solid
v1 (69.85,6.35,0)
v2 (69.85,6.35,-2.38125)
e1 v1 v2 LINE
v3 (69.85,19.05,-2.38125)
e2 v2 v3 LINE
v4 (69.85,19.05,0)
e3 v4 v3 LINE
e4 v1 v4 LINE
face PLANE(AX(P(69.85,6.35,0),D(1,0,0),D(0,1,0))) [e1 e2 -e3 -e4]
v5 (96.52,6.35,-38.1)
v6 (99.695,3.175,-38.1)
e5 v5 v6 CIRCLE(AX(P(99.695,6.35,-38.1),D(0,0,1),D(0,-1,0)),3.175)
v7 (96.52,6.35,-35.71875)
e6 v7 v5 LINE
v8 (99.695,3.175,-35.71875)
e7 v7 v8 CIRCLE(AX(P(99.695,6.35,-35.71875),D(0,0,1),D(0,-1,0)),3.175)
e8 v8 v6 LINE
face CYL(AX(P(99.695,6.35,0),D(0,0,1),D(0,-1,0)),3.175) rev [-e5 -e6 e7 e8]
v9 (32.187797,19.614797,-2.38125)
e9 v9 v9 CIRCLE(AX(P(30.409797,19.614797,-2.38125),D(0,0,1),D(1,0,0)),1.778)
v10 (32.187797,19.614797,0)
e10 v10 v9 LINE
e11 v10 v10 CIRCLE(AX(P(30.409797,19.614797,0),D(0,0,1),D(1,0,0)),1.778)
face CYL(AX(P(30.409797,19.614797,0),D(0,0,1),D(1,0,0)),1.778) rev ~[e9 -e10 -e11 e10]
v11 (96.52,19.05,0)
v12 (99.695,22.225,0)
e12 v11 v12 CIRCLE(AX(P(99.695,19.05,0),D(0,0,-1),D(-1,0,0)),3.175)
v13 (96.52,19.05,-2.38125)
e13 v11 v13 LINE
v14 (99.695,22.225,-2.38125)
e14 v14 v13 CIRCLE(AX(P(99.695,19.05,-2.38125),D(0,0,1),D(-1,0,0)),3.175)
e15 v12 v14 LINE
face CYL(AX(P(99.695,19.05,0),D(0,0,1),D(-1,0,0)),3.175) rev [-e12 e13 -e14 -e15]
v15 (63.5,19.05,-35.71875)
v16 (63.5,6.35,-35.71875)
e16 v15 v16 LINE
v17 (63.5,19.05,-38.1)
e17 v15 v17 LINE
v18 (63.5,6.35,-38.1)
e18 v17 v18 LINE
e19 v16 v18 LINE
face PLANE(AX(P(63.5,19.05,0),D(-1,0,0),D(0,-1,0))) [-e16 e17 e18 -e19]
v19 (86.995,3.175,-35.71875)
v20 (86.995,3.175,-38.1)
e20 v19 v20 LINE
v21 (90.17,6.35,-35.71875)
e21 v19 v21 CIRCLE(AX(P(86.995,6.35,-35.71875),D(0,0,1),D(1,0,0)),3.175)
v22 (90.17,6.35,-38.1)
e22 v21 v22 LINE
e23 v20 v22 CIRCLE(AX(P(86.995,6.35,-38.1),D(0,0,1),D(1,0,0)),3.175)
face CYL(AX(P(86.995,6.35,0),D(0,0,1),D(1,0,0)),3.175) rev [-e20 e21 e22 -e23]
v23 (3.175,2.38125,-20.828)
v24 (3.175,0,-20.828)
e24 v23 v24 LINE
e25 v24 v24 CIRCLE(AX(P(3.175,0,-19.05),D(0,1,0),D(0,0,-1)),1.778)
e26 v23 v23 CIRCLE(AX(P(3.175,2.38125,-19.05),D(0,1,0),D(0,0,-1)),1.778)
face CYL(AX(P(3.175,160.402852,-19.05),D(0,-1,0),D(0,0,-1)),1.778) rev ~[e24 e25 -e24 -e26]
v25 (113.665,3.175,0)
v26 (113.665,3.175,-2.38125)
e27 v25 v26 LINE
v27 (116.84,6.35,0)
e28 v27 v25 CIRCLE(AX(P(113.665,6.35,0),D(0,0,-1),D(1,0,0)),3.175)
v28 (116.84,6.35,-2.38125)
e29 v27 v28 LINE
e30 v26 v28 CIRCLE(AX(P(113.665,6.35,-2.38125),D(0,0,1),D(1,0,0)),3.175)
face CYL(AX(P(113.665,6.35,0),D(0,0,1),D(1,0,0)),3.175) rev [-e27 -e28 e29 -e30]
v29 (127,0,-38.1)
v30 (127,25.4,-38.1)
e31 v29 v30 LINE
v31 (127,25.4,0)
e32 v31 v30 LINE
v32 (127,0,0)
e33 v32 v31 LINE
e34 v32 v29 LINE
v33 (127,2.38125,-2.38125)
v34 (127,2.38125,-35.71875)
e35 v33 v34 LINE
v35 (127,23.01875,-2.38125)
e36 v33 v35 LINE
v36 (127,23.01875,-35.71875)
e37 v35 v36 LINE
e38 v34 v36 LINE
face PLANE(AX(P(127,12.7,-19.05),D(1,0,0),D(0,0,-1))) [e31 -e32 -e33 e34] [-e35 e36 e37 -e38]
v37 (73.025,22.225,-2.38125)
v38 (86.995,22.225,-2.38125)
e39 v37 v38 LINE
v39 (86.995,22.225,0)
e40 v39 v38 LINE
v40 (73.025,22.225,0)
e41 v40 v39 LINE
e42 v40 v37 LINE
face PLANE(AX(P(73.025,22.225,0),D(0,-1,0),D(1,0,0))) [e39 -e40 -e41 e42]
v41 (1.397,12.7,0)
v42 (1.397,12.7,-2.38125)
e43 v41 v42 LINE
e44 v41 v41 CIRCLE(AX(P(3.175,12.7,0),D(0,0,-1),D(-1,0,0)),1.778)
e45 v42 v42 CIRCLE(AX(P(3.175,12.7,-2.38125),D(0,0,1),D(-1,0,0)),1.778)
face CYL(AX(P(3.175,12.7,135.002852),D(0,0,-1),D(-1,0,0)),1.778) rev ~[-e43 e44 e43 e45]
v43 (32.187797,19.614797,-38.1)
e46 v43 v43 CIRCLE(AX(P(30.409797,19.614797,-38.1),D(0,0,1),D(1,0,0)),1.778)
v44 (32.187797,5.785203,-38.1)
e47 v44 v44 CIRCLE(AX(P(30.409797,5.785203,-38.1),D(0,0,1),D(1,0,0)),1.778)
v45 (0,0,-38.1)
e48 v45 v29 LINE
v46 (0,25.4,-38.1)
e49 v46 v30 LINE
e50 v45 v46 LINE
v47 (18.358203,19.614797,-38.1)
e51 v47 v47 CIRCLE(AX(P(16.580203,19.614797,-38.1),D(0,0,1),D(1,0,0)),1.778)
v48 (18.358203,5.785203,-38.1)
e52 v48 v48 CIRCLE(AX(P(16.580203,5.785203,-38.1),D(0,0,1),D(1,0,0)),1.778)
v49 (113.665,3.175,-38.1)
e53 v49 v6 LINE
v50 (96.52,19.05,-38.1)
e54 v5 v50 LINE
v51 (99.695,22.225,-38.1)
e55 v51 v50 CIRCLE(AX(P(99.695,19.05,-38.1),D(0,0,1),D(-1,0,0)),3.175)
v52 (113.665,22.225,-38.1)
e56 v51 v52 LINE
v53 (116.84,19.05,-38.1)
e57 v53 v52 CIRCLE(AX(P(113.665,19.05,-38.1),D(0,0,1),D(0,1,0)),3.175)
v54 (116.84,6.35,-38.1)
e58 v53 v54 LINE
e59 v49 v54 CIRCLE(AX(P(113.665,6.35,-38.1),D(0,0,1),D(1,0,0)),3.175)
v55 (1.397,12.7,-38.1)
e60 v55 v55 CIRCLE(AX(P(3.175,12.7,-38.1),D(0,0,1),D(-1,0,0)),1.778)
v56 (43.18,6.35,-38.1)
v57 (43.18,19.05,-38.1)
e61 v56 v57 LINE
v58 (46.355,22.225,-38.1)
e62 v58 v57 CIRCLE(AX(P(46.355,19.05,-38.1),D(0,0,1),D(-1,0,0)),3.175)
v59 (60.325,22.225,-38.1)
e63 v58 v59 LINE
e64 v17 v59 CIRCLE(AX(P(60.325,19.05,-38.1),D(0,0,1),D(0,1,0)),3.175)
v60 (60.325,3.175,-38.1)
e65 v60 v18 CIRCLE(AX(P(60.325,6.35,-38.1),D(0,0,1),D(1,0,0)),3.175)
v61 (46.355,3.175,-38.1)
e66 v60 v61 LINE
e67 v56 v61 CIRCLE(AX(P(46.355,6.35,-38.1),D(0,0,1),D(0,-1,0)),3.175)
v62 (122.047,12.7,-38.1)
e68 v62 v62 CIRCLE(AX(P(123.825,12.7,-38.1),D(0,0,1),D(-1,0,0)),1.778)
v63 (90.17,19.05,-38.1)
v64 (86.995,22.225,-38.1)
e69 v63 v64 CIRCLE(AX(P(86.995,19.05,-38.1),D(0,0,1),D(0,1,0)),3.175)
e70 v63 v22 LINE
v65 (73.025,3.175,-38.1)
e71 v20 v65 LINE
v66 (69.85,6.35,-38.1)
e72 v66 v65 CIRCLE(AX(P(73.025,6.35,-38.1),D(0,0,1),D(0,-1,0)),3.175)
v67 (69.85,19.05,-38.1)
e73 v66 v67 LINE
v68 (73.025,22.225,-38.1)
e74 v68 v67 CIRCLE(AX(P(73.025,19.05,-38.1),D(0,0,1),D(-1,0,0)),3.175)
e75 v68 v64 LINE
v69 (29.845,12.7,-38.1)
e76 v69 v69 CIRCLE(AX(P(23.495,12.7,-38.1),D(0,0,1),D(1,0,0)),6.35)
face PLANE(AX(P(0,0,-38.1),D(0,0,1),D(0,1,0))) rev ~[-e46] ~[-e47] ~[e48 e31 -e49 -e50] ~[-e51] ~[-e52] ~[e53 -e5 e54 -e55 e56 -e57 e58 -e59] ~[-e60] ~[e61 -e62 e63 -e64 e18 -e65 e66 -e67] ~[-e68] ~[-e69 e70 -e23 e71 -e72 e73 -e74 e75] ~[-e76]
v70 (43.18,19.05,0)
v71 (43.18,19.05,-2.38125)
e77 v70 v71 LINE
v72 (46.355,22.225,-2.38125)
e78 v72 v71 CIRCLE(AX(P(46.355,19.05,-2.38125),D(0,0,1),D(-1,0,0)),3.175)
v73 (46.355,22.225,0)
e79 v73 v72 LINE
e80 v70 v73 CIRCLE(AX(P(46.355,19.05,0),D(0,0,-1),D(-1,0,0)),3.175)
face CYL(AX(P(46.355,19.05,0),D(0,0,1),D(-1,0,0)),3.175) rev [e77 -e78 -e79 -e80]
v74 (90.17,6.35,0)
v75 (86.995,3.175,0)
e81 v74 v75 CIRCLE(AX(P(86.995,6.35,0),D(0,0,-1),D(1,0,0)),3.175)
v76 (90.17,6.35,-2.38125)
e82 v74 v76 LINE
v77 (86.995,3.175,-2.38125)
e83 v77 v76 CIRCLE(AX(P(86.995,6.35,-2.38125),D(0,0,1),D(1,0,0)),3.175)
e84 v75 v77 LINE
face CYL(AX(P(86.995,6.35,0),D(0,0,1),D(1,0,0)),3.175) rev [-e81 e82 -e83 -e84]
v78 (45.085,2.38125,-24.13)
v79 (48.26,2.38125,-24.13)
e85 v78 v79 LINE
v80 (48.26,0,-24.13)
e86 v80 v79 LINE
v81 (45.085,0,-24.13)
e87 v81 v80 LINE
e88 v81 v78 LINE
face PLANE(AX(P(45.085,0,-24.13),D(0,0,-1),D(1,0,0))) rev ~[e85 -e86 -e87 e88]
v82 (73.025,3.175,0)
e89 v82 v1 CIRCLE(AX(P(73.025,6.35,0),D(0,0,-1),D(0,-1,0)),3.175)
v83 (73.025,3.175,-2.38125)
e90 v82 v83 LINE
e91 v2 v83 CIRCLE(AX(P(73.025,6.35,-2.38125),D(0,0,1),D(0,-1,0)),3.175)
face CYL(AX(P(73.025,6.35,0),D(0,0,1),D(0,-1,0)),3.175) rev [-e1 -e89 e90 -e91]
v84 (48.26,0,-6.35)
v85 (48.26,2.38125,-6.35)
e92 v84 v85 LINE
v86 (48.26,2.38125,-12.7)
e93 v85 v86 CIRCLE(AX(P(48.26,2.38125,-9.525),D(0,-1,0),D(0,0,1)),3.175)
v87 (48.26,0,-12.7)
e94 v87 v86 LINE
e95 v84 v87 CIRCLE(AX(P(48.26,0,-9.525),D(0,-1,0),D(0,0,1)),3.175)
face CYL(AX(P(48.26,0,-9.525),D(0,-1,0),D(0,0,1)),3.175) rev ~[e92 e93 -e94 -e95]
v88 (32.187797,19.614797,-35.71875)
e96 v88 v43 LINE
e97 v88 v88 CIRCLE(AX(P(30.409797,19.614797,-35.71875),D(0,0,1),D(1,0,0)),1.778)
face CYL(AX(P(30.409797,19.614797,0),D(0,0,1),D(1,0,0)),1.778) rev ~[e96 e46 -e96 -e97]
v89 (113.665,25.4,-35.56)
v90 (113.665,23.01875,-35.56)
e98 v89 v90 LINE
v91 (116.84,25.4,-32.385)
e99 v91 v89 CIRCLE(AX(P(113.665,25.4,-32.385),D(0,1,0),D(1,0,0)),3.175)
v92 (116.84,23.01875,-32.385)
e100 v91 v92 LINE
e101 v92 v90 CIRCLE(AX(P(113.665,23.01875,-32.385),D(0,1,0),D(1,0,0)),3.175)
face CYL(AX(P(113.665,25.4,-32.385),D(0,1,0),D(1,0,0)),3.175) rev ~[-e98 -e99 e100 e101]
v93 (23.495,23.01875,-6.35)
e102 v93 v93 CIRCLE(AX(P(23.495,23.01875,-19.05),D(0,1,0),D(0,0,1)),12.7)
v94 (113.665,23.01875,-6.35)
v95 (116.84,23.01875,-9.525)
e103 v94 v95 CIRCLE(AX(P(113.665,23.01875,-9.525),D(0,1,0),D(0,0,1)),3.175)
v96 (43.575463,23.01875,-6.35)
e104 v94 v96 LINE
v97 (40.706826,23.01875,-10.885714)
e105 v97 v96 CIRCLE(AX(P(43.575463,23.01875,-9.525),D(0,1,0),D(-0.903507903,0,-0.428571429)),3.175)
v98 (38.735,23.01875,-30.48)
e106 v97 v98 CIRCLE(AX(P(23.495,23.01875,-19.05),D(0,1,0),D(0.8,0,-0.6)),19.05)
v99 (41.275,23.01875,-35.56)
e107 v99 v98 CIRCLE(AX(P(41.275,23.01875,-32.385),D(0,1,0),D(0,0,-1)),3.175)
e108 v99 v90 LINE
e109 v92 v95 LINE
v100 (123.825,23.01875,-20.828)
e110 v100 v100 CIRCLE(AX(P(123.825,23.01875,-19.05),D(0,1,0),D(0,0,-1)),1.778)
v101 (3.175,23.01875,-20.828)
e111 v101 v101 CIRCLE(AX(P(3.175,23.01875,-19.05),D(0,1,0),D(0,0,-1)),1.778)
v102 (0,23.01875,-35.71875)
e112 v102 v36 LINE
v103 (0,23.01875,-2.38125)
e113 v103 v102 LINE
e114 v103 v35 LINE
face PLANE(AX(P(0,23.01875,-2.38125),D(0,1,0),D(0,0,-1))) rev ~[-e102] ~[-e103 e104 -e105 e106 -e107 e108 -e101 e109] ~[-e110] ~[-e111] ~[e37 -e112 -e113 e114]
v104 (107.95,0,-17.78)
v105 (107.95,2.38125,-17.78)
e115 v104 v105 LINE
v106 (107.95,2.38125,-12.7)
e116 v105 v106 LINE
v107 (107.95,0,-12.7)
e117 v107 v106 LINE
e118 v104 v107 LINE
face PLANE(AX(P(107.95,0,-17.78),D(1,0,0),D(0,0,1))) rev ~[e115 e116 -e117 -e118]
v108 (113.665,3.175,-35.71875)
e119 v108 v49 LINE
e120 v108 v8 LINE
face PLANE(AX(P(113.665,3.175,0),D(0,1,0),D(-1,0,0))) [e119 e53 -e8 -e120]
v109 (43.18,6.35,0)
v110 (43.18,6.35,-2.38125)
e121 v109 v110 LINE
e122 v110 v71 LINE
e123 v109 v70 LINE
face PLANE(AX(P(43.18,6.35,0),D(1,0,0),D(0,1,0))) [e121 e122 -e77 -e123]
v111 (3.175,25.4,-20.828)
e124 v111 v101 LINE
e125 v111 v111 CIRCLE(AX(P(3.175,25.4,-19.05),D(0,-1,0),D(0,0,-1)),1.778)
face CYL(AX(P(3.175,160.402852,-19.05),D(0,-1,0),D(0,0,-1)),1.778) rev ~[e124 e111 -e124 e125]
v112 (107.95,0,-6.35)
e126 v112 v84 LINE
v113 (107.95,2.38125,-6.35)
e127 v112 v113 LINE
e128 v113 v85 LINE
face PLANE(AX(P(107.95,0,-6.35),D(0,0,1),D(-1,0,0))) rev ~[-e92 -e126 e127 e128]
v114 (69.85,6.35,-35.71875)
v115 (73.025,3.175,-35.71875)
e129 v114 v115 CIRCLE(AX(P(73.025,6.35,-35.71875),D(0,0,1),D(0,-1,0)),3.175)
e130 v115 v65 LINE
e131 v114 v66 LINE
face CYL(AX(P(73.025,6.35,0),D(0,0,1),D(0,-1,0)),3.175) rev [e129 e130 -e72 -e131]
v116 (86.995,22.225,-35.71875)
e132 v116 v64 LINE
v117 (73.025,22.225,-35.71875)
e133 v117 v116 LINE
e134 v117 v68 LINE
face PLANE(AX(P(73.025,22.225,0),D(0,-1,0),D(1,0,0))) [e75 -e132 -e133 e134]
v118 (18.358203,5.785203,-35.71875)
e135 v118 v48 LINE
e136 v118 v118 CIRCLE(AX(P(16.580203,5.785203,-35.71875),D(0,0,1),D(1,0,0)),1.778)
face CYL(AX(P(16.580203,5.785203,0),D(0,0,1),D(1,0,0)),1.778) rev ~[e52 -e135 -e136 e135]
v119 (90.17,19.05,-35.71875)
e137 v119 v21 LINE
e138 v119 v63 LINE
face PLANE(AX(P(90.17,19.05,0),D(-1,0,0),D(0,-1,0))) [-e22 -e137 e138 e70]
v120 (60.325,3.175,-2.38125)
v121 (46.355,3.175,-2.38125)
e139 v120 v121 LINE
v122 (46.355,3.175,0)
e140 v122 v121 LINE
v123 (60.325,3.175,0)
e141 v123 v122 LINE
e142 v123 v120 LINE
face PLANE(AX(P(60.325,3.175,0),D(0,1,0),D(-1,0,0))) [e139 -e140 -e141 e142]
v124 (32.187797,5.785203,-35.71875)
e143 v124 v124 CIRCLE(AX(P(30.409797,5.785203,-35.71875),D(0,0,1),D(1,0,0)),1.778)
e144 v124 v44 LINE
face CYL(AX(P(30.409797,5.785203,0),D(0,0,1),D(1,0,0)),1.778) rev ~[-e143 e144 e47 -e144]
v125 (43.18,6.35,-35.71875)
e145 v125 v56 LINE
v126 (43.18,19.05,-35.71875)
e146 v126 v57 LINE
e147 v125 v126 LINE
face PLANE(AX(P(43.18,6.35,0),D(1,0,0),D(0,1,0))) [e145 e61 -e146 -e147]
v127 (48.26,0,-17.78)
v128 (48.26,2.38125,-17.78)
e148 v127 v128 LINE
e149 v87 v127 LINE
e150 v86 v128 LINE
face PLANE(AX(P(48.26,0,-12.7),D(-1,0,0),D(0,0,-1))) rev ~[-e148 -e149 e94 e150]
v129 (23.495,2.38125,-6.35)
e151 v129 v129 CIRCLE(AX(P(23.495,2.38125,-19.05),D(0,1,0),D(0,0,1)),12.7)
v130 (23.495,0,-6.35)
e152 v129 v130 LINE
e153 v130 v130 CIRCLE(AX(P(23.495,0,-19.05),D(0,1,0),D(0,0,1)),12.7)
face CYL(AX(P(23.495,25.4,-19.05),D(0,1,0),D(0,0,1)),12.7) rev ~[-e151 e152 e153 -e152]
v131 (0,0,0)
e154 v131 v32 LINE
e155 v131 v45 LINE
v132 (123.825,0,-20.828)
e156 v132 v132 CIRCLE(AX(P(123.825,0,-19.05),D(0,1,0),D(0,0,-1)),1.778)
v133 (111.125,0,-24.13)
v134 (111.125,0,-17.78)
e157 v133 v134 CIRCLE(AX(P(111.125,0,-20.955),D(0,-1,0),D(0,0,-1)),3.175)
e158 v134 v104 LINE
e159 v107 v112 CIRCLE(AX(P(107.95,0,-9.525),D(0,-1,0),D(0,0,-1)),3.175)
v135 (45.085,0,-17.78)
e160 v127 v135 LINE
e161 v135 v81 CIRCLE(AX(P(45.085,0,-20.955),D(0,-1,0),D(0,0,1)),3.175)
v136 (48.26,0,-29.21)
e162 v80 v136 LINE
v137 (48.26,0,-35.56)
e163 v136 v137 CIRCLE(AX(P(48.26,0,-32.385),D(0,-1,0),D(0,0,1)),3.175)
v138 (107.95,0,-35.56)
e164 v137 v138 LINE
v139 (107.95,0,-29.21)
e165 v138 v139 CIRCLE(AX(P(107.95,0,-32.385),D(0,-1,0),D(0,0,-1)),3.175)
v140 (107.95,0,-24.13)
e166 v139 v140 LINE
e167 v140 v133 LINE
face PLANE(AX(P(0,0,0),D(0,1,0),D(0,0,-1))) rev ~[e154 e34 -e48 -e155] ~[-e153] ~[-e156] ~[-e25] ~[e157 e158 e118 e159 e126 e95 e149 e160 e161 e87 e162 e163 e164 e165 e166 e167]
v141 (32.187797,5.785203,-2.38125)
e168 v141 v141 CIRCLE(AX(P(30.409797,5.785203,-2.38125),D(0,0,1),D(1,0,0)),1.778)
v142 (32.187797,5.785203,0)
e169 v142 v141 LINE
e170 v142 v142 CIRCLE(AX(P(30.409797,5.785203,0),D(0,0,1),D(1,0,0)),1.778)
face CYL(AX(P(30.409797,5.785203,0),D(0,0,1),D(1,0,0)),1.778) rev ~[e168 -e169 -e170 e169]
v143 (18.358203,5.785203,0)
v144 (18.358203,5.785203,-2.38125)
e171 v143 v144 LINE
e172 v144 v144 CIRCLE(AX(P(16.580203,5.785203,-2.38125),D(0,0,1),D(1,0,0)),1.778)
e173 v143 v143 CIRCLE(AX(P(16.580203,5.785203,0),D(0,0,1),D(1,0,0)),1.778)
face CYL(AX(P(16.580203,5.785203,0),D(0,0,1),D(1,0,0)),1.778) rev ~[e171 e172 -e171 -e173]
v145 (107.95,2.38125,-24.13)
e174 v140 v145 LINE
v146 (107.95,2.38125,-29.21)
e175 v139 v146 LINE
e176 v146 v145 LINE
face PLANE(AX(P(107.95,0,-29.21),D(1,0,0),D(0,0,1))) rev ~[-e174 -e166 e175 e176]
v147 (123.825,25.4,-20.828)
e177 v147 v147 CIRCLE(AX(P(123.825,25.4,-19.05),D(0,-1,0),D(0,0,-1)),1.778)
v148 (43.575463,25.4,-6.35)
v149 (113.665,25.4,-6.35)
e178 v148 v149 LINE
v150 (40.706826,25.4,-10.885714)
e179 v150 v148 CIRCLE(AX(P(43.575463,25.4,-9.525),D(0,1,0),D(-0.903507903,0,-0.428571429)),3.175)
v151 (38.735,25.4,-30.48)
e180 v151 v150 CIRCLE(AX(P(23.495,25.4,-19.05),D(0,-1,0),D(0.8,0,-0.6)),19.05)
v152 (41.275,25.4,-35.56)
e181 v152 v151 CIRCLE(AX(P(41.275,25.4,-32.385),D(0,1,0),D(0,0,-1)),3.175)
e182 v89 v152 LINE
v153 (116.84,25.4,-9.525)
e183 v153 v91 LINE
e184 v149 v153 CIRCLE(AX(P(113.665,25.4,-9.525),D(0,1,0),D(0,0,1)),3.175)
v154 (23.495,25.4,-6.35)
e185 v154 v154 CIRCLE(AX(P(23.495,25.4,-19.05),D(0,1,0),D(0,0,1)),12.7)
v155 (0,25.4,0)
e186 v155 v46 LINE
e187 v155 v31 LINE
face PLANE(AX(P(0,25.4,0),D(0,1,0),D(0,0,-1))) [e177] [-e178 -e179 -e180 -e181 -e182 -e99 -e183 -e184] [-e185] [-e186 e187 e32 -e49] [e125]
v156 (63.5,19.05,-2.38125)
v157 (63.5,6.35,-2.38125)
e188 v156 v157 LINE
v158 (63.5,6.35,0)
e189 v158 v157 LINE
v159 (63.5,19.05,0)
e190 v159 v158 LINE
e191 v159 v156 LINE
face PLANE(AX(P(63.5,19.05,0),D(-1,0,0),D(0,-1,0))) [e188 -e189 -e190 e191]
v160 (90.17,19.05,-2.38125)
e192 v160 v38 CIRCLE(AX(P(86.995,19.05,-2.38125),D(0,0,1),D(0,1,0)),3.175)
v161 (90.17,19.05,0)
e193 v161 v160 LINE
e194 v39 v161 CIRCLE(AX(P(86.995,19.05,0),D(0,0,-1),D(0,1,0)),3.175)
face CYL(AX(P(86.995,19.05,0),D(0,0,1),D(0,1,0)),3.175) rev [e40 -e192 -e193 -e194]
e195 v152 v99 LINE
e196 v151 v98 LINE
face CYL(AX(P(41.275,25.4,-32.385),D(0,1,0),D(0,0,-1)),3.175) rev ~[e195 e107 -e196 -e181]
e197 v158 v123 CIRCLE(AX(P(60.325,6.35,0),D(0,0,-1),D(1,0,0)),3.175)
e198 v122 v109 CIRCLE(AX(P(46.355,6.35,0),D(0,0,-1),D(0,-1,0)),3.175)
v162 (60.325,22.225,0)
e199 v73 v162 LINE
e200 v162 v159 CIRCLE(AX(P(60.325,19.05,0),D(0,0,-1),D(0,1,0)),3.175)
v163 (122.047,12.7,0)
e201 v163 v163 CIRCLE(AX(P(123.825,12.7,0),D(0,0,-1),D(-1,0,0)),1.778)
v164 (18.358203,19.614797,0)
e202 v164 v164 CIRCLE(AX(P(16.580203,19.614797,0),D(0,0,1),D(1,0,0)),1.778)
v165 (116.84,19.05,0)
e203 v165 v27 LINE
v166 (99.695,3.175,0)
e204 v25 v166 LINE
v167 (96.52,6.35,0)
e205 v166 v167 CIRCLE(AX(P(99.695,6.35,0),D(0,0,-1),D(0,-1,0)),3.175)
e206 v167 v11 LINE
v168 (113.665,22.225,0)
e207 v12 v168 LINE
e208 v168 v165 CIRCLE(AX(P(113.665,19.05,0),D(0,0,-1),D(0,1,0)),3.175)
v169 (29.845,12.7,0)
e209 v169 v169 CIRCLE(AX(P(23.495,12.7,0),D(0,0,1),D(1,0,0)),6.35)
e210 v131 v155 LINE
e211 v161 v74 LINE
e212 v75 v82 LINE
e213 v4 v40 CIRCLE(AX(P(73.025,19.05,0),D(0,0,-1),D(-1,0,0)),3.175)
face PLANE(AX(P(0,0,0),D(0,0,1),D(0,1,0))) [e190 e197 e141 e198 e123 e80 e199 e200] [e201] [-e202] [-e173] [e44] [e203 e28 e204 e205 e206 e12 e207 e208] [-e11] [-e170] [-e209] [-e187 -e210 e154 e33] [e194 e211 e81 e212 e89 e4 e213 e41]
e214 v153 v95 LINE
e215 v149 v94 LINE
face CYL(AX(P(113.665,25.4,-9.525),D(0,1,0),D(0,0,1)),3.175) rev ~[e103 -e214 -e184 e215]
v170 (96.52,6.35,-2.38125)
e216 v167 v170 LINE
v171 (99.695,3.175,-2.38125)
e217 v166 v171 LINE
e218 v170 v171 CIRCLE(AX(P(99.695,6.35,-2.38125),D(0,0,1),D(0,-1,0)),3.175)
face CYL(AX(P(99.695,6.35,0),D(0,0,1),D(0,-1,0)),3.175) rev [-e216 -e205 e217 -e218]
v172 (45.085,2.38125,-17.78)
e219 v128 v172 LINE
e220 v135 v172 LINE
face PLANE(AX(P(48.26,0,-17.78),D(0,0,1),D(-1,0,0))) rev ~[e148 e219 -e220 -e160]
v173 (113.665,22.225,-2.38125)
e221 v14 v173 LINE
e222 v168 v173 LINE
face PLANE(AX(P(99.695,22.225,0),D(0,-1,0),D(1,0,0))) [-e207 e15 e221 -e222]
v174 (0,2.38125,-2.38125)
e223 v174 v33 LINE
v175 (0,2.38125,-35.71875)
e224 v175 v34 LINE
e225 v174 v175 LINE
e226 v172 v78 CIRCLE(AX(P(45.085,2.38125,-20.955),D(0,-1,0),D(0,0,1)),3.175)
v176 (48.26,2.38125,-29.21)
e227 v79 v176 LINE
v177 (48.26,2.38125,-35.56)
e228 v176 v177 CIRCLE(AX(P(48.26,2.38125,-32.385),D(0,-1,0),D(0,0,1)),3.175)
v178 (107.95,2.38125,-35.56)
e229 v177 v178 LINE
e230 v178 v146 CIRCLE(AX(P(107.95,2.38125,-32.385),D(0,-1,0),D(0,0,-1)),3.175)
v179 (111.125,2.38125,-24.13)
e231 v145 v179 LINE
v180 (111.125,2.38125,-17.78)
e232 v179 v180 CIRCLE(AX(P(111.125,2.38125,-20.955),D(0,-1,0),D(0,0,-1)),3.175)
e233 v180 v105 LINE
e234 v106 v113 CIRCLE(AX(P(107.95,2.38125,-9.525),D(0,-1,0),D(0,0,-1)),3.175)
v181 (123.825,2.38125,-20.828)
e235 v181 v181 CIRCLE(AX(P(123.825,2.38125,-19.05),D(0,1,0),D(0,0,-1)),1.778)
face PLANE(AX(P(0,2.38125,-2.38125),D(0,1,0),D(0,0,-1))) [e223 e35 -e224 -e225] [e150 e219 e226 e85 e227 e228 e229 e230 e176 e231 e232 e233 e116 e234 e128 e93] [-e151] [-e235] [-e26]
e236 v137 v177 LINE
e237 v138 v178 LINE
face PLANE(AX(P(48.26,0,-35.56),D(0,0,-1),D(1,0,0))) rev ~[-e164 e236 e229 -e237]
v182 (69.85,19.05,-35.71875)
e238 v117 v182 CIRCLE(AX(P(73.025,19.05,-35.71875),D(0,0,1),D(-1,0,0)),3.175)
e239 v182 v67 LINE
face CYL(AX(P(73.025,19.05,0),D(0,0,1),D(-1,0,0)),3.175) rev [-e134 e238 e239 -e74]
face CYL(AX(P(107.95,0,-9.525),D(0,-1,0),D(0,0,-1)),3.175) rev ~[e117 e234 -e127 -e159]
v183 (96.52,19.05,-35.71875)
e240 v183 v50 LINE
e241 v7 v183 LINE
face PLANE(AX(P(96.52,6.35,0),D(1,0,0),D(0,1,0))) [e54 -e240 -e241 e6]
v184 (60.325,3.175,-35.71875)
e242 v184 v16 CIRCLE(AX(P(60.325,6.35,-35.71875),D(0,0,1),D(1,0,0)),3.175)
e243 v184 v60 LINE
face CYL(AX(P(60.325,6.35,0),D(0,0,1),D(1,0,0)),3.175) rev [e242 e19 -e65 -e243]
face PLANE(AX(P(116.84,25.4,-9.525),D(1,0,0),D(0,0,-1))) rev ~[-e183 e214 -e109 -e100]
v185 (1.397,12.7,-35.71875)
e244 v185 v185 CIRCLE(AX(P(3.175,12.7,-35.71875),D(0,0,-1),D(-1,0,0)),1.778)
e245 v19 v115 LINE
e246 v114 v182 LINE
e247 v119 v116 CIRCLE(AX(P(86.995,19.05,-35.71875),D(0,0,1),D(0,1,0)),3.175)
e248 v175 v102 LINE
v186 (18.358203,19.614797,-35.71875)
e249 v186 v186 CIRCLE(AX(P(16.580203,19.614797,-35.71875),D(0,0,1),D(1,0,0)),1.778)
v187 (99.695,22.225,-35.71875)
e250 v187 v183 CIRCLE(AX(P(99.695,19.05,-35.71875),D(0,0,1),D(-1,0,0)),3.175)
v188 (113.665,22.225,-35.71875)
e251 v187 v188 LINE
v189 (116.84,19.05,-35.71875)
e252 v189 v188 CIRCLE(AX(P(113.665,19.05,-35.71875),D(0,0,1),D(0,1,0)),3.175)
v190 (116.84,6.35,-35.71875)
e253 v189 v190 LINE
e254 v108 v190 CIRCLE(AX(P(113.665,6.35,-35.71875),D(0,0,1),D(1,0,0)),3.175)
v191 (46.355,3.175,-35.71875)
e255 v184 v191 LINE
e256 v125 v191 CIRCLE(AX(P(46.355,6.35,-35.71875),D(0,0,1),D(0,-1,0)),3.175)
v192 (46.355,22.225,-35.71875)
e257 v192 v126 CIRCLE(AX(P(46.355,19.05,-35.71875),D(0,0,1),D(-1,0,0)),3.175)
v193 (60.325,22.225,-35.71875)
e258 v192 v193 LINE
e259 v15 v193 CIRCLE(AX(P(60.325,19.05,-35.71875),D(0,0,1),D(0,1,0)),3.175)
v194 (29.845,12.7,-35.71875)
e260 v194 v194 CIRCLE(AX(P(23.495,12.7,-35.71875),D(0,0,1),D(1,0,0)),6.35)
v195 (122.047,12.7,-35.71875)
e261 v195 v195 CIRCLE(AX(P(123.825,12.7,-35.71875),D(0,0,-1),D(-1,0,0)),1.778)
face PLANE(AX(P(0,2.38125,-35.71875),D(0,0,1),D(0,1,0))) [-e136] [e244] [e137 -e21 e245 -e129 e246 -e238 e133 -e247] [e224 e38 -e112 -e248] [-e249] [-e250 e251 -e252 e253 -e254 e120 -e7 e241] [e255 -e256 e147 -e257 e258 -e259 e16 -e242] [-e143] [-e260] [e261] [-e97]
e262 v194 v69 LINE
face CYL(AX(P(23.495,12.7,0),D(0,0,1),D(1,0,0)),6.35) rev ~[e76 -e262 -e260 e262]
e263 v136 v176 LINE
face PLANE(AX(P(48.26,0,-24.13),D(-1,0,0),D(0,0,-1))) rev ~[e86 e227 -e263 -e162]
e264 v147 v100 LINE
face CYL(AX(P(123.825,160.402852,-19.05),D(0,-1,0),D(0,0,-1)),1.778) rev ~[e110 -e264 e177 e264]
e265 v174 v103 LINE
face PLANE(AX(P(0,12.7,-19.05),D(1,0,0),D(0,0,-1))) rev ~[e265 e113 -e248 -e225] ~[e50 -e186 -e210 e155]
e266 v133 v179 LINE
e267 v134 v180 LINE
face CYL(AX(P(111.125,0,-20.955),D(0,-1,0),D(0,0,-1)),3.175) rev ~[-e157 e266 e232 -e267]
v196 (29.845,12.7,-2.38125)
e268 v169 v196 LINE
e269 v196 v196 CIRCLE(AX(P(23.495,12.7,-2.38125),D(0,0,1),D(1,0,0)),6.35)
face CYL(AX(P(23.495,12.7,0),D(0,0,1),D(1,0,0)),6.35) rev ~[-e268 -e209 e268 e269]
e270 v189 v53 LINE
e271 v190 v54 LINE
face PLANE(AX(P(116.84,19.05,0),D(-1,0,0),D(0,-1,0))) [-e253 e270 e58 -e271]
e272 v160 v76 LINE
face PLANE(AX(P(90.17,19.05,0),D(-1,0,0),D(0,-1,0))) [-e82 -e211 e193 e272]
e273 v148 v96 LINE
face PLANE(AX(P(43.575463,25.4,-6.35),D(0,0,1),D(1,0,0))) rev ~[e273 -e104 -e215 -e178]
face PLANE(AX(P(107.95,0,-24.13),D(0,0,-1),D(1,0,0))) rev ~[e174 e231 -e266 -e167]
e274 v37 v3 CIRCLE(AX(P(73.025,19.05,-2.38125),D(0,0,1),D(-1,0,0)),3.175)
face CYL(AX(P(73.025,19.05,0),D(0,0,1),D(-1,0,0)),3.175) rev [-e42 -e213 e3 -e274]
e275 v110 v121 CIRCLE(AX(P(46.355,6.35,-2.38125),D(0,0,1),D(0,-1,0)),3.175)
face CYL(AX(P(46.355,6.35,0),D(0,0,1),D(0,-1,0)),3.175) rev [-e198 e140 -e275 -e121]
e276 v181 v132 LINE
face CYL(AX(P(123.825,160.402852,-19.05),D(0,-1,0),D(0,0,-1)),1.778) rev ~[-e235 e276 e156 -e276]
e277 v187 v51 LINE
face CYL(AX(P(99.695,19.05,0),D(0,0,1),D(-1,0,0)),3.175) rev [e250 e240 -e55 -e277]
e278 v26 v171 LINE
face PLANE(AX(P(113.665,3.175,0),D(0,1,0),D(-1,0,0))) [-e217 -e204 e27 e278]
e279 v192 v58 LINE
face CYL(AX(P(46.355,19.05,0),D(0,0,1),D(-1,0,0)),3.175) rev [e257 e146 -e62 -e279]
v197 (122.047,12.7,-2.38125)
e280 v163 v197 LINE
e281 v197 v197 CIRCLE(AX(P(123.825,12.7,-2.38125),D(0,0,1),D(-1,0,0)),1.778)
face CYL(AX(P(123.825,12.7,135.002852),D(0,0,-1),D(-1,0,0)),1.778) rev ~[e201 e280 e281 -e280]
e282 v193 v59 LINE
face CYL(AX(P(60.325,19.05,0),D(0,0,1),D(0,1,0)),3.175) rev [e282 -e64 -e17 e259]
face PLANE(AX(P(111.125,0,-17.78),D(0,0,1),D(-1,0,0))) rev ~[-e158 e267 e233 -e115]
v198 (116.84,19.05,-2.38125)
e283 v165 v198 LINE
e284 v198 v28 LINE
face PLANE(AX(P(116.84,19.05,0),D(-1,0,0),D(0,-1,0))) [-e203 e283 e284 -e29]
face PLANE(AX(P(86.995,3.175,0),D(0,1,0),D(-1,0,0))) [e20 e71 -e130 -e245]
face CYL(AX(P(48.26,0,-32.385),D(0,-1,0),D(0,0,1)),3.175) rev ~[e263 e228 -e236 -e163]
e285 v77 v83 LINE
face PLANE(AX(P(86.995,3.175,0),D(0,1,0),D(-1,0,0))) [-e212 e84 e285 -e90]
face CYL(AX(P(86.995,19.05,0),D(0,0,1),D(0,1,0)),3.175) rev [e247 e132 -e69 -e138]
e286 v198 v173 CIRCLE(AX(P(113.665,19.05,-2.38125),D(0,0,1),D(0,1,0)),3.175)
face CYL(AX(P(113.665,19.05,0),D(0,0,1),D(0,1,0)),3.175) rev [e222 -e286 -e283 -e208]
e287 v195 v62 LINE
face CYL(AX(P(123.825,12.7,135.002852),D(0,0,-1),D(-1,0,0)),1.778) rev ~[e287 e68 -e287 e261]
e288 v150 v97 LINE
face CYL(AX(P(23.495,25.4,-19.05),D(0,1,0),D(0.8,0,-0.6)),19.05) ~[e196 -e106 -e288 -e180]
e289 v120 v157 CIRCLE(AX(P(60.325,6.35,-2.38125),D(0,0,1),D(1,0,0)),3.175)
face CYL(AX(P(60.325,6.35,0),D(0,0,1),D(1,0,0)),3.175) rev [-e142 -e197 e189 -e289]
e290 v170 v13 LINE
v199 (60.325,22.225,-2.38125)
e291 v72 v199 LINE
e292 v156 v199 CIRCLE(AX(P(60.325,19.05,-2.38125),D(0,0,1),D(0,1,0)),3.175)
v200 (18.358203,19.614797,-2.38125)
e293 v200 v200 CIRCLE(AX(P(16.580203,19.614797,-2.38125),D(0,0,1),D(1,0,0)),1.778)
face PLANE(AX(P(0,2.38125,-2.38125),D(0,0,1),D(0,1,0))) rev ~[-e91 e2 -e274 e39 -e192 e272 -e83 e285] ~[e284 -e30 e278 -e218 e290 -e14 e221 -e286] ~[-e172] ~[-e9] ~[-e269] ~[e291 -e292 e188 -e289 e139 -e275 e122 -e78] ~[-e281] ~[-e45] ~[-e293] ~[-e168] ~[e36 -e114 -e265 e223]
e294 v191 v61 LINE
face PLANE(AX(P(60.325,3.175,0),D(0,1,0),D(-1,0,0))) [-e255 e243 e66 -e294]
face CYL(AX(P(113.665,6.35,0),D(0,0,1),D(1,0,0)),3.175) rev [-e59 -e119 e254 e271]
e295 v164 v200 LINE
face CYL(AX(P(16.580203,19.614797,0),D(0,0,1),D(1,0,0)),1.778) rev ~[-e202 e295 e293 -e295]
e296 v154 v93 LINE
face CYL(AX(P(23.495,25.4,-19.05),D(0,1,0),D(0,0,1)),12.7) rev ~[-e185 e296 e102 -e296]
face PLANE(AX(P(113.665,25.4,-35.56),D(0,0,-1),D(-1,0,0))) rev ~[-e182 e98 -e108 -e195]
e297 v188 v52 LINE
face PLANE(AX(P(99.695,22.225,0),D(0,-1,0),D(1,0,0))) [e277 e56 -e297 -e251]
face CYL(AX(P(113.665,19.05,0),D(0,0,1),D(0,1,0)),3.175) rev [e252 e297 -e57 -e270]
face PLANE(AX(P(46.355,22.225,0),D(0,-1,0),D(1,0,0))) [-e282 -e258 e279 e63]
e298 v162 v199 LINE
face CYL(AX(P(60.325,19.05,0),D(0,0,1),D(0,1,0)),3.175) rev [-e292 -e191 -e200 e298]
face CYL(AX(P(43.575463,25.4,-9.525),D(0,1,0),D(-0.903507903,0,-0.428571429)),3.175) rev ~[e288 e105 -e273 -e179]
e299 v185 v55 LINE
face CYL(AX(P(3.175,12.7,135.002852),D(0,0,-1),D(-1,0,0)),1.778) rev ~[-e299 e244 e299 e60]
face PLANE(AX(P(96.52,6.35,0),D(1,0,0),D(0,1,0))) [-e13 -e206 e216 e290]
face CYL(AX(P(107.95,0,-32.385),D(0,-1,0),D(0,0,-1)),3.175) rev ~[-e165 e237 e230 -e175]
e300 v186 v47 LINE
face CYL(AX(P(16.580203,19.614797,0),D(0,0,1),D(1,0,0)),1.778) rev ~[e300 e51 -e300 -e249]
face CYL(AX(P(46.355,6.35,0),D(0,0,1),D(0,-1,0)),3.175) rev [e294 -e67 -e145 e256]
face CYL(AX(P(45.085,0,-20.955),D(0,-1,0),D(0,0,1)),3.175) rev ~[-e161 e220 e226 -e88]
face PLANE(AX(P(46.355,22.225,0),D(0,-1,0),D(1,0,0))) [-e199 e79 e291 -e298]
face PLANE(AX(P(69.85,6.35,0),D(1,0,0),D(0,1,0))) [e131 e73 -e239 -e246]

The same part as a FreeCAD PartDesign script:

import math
import FreeCAD as App
import Part
import Sketcher
from FreeCAD import Vector
Q = App.Units.Quantity

doc = App.newDocument("Part")
body = doc.addObject("PartDesign::Body", "Body")

# Sketch on YZ plane
sketch1 = body.newObject("Sketcher::SketchObject", "Sketch")
sketch1.AttachmentSupport = (doc.getObject("YZ_Plane"), [""])
sketch1.MapMode = "FlatFace"
sketch1.addGeometry([
    Part.LineSegment(Vector(25, 0, 0), Vector(0, 0, 0)),  # 0
    Part.LineSegment(Vector(0, 0, 0), Vector(0, -38, 0)),  # 1
    Part.LineSegment(Vector(0, -38, 0), Vector(25, -38, 0)),  # 2
    Part.LineSegment(Vector(25, -38, 0), Vector(25, 0, 0)),  # 3
    Part.LineSegment(Vector(2, -36, 0), Vector(2, -2, 0)),  # 4
    Part.LineSegment(Vector(2, -2, 0), Vector(23, -2, 0)),  # 5
    Part.LineSegment(Vector(23, -2, 0), Vector(23, -36, 0)),  # 6
    Part.LineSegment(Vector(23, -36, 0), Vector(2, -36, 0)),  # 7
], False)
sketch1.addConstraint([
    Sketcher.Constraint("Coincident", 0, 2, 1, 1),
    Sketcher.Constraint("Coincident", 1, 2, 2, 1),
    Sketcher.Constraint("Coincident", 2, 2, 3, 1),
    Sketcher.Constraint("Coincident", 3, 2, 0, 1),
    Sketcher.Constraint("Coincident", 4, 2, 5, 1),
    Sketcher.Constraint("Coincident", 5, 2, 6, 1),
    Sketcher.Constraint("Coincident", 6, 2, 7, 1),
    Sketcher.Constraint("Coincident", 7, 2, 4, 1),
    Sketcher.Constraint("Horizontal", 0),
    Sketcher.Constraint("Vertical", 1),
    Sketcher.Constraint("Horizontal", 2),
    Sketcher.Constraint("Vertical", 3),
    Sketcher.Constraint("Vertical", 4),
    Sketcher.Constraint("Horizontal", 5),
    Sketcher.Constraint("Vertical", 6),
    Sketcher.Constraint("Horizontal", 7),
    Sketcher.Constraint("Coincident", 0, 2, -1, 1),
    Sketcher.Constraint("DistanceX", 0, 2, 0, 1, Q("1 in")),
    Sketcher.Constraint("DistanceY", 1, 2, 1, 1, Q("1.5 in")),
    Sketcher.Constraint("DistanceX", 5, 1, 5, 2, Q("0.8125 in")),
    Sketcher.Constraint("DistanceY", 4, 1, 4, 2, Q("1.3125 in")),
    Sketcher.Constraint("DistanceX", -1, 1, 4, 2, Q("0.09375 in")),
    Sketcher.Constraint("DistanceY", 4, 2, -1, 1, Q("0.09375 in")),
])
pad1 = body.newObject("PartDesign::Pad", "Pad")
pad1.Profile = sketch1
pad1.Length = Q("5 in")

# Sketch on XZ plane
sketch2 = body.newObject("Sketcher::SketchObject", "Sketch001")
sketch2.AttachmentSupport = (doc.getObject("XZ_Plane"), [""])
sketch2.MapMode = "FlatFace"
sketch2.AttachmentOffset = App.Placement(Vector(0, 0, -1 * 25.4), App.Rotation())
sketch2.addGeometry(Part.Circle(Vector(23, -19, 0), Vector(0, 0, 1), 13), False)
sketch2.addConstraint([
    Sketcher.Constraint("Diameter", 0, Q("1 in")),
    Sketcher.Constraint("DistanceY", 0, 3, -1, 1, Q("0.75 in")),
    Sketcher.Constraint("DistanceX", -1, 1, 0, 3, Q("0.925 in")),
])
pocket1 = body.newObject("PartDesign::Pocket", "Pocket")
pocket1.Profile = sketch2
pocket1.Type = "ThroughAll"
pocket1.Reversed = True

# Sketch on XY plane
sketch3 = body.newObject("Sketcher::SketchObject", "Sketch002")
sketch3.AttachmentSupport = (doc.getObject("XY_Plane"), [""])
sketch3.MapMode = "FlatFace"
sketch3.addGeometry([
    Part.Circle(Vector(23.5, 12.7, 0), Vector(0, 0, 1), 6.3),  # 0
    Part.Circle(Vector(16.6, 19.6, 0), Vector(0, 0, 1), 1.8),  # 1
    Part.Circle(Vector(16.6, 5.8, 0), Vector(0, 0, 1), 1.8),  # 2
    Part.Circle(Vector(30.4, 5.8, 0), Vector(0, 0, 1), 1.8),  # 3
    Part.Circle(Vector(30.4, 19.6, 0), Vector(0, 0, 1), 1.8),  # 4
    Part.LineSegment(Vector(60.3, 22.2, 0), Vector(46.4, 22.2, 0)),  # 5
    Part.ArcOfCircle(Part.Circle(Vector(46.4, 19, 0), Vector(0, 0, 1), 3.2), math.radians(90), math.radians(180)),  # 6
    Part.LineSegment(Vector(43.2, 19.1, 0), Vector(43.2, 6.3, 0)),  # 7
    Part.ArcOfCircle(Part.Circle(Vector(46.4, 6.4, 0), Vector(0, 0, 1), 3.2), math.radians(-180), math.radians(-90)),  # 8
    Part.LineSegment(Vector(46.4, 3.2, 0), Vector(60.3, 3.2, 0)),  # 9
    Part.ArcOfCircle(Part.Circle(Vector(60.3, 6.4, 0), Vector(0, 0, 1), 3.2), math.radians(-90), math.radians(0)),  # 10
    Part.LineSegment(Vector(63.5, 6.3, 0), Vector(63.5, 19.1, 0)),  # 11
    Part.ArcOfCircle(Part.Circle(Vector(60.3, 19, 0), Vector(0, 0, 1), 3.2), math.radians(0), math.radians(90)),  # 12
    Part.LineSegment(Vector(87, 22.2, 0), Vector(73, 22.2, 0)),  # 13
    Part.ArcOfCircle(Part.Circle(Vector(73, 19, 0), Vector(0, 0, 1), 3.2), math.radians(90), math.radians(180)),  # 14
    Part.LineSegment(Vector(69.8, 19.1, 0), Vector(69.8, 6.3, 0)),  # 15
    Part.ArcOfCircle(Part.Circle(Vector(73, 6.4, 0), Vector(0, 0, 1), 3.2), math.radians(-180), math.radians(-90)),  # 16
    Part.LineSegment(Vector(73, 3.2, 0), Vector(87, 3.2, 0)),  # 17
    Part.ArcOfCircle(Part.Circle(Vector(87, 6.4, 0), Vector(0, 0, 1), 3.2), math.radians(-90), math.radians(0)),  # 18
    Part.LineSegment(Vector(90.2, 6.3, 0), Vector(90.2, 19.1, 0)),  # 19
    Part.ArcOfCircle(Part.Circle(Vector(87, 19, 0), Vector(0, 0, 1), 3.2), math.radians(0), math.radians(90)),  # 20
    Part.LineSegment(Vector(113.7, 22.2, 0), Vector(99.7, 22.2, 0)),  # 21
    Part.ArcOfCircle(Part.Circle(Vector(99.7, 19, 0), Vector(0, 0, 1), 3.2), math.radians(90), math.radians(180)),  # 22
    Part.LineSegment(Vector(96.5, 19.1, 0), Vector(96.5, 6.3, 0)),  # 23
    Part.ArcOfCircle(Part.Circle(Vector(99.7, 6.4, 0), Vector(0, 0, 1), 3.2), math.radians(-180), math.radians(-90)),  # 24
    Part.LineSegment(Vector(99.7, 3.2, 0), Vector(113.7, 3.2, 0)),  # 25
    Part.ArcOfCircle(Part.Circle(Vector(113.7, 6.4, 0), Vector(0, 0, 1), 3.2), math.radians(-90), math.radians(0)),  # 26
    Part.LineSegment(Vector(116.8, 6.3, 0), Vector(116.8, 19.1, 0)),  # 27
    Part.ArcOfCircle(Part.Circle(Vector(113.7, 19, 0), Vector(0, 0, 1), 3.2), math.radians(0), math.radians(90)),  # 28
], False)
sketch3.addConstraint([
    Sketcher.Constraint("Tangent", 5, 2, 6, 1),
    Sketcher.Constraint("Tangent", 6, 2, 7, 1),
    Sketcher.Constraint("Tangent", 7, 2, 8, 1),
    Sketcher.Constraint("Tangent", 8, 2, 9, 1),
    Sketcher.Constraint("Tangent", 9, 2, 10, 1),
    Sketcher.Constraint("Tangent", 10, 2, 11, 1),
    Sketcher.Constraint("Tangent", 11, 2, 12, 1),
    Sketcher.Constraint("Tangent", 12, 2, 5, 1),
    Sketcher.Constraint("Tangent", 13, 2, 14, 1),
    Sketcher.Constraint("Tangent", 14, 2, 15, 1),
    Sketcher.Constraint("Tangent", 15, 2, 16, 1),
    Sketcher.Constraint("Tangent", 16, 2, 17, 1),
    Sketcher.Constraint("Tangent", 17, 2, 18, 1),
    Sketcher.Constraint("Tangent", 18, 2, 19, 1),
    Sketcher.Constraint("Tangent", 19, 2, 20, 1),
    Sketcher.Constraint("Tangent", 20, 2, 13, 1),
    Sketcher.Constraint("Tangent", 21, 2, 22, 1),
    Sketcher.Constraint("Tangent", 22, 2, 23, 1),
    Sketcher.Constraint("Tangent", 23, 2, 24, 1),
    Sketcher.Constraint("Tangent", 24, 2, 25, 1),
    Sketcher.Constraint("Tangent", 25, 2, 26, 1),
    Sketcher.Constraint("Tangent", 26, 2, 27, 1),
    Sketcher.Constraint("Tangent", 27, 2, 28, 1),
    Sketcher.Constraint("Tangent", 28, 2, 21, 1),
    Sketcher.Constraint("Horizontal", 5),
    Sketcher.Constraint("Vertical", 7),
    Sketcher.Constraint("Horizontal", 9),
    Sketcher.Constraint("Vertical", 11),
    Sketcher.Constraint("Horizontal", 13),
    Sketcher.Constraint("Vertical", 15),
    Sketcher.Constraint("Horizontal", 17),
    Sketcher.Constraint("Vertical", 19),
    Sketcher.Constraint("Horizontal", 21),
    Sketcher.Constraint("Vertical", 23),
    Sketcher.Constraint("Horizontal", 25),
    Sketcher.Constraint("Vertical", 27),
    Sketcher.Constraint("Equal", 1, 2),
    Sketcher.Constraint("Equal", 2, 3),
    Sketcher.Constraint("Equal", 3, 4),
    Sketcher.Constraint("Equal", 6, 8),
    Sketcher.Constraint("Equal", 8, 10),
    Sketcher.Constraint("Equal", 10, 12),
    Sketcher.Constraint("Equal", 12, 14),
    Sketcher.Constraint("Equal", 14, 16),
    Sketcher.Constraint("Equal", 16, 18),
    Sketcher.Constraint("Equal", 18, 20),
    Sketcher.Constraint("Equal", 20, 22),
    Sketcher.Constraint("Equal", 22, 24),
    Sketcher.Constraint("Equal", 24, 26),
    Sketcher.Constraint("Equal", 26, 28),
    Sketcher.Constraint("Horizontal", 2, 3, 3, 3),
    Sketcher.Constraint("Horizontal", 1, 3, 4, 3),
    Sketcher.Constraint("Horizontal", 12, 3, 14, 3),
    Sketcher.Constraint("Horizontal", 10, 3, 16, 3),
    Sketcher.Constraint("Horizontal", 20, 3, 22, 3),
    Sketcher.Constraint("Horizontal", 18, 3, 24, 3),
    Sketcher.Constraint("Vertical", 1, 3, 2, 3),
    Sketcher.Constraint("Vertical", 3, 3, 4, 3),
    Sketcher.Constraint("Equal", 9, 13),
    Sketcher.Constraint("Equal", 17, 21),
    Sketcher.Constraint("Diameter", 0, Q("0.5 in")),
    Sketcher.Constraint("Diameter", 1, Q("0.14 in")),
    Sketcher.Constraint("DistanceY", 7, 2, 7, 1, Q("0.5 in")),
    Sketcher.Constraint("Radius", 6, Q("0.125 in")),
    Sketcher.Constraint("DistanceX", 5, 2, 5, 1, Q("0.55 in")),
    Sketcher.Constraint("DistanceY", -1, 1, 0, 3, Q("0.5 in")),
    Sketcher.Constraint("DistanceX", -1, 1, 6, 2, Q("1.7 in")),
    Sketcher.Constraint("DistanceX", -1, 1, 22, 2, Q("3.8 in")),
    Sketcher.Constraint("DistanceX", 0, 3, 6, 3, Q("0.9 in")),
    Sketcher.Constraint("DistanceX", 12, 3, 14, 3, Q("0.5 in")),
    Sketcher.Constraint("DistanceY", -1, 1, 6, 3, Q("0.75 in")),
    Sketcher.Constraint("DistanceX", -1, 1, 1, 3, 16.580203),
    Sketcher.Constraint("DistanceY", -1, 1, 1, 3, 19.614797),
    Sketcher.Constraint("DistanceY", -1, 1, 2, 3, 5.785203),
    Sketcher.Constraint("DistanceX", -1, 1, 3, 3, 30.409797),
])
pocket2 = body.newObject("PartDesign::Pocket", "Pocket001")
pocket2.Profile = sketch3
pocket2.Type = "ThroughAll"

# Sketch on XZ plane
sketch4 = body.newObject("Sketcher::SketchObject", "Sketch003")
sketch4.AttachmentSupport = (doc.getObject("XZ_Plane"), [""])
sketch4.MapMode = "FlatFace"
sketch4.AttachmentOffset = App.Placement(Vector(0, 0, -1 * 25.4), App.Rotation())
sketch4.addGeometry([
    Part.LineSegment(Vector(43.6, -6.3, 0), Vector(113.7, -6.3, 0)),  # 0
    Part.ArcOfCircle(Part.Circle(Vector(113.7, -9.5, 0), Vector(0, 0, 1), 3.2), math.radians(0), math.radians(90)),  # 1
    Part.LineSegment(Vector(116.8, -9.5, 0), Vector(116.8, -32.4, 0)),  # 2
    Part.ArcOfCircle(Part.Circle(Vector(113.7, -32.4, 0), Vector(0, 0, 1), 3.2), math.radians(-90), math.radians(0)),  # 3
    Part.LineSegment(Vector(113.7, -35.6, 0), Vector(41.3, -35.6, 0)),  # 4
    Part.ArcOfCircle(Part.Circle(Vector(41.3, -32.4, 0), Vector(0, 0, 1), 3.2), math.radians(143), math.radians(270)),  # 5
    Part.ArcOfCircle(Part.Circle(Vector(23.5, -19.1, 0), Vector(0, 0, 1), 19.1), math.radians(-37), math.radians(25)),  # 6
    Part.ArcOfCircle(Part.Circle(Vector(43.6, -9.5, 0), Vector(0, 0, 1), 3.2), math.radians(90), math.radians(205)),  # 7
], False)
sketch4.addConstraint([
    Sketcher.Constraint("Tangent", 0, 2, 1, 2),
    Sketcher.Constraint("Tangent", 1, 1, 2, 1),
    Sketcher.Constraint("Tangent", 2, 2, 3, 2),
    Sketcher.Constraint("Tangent", 3, 1, 4, 1),
    Sketcher.Constraint("Tangent", 4, 2, 5, 2),
    Sketcher.Constraint("Tangent", 5, 1, 6, 1),
    Sketcher.Constraint("Tangent", 6, 2, 7, 2),
    Sketcher.Constraint("Tangent", 7, 1, 0, 1),
    Sketcher.Constraint("Horizontal", 0),
    Sketcher.Constraint("Vertical", 2),
    Sketcher.Constraint("Horizontal", 4),
    Sketcher.Constraint("Equal", 1, 3),
    Sketcher.Constraint("Equal", 3, 5),
    Sketcher.Constraint("Equal", 5, 7),
    Sketcher.Constraint("Radius", 6, Q("0.75 in")),
    Sketcher.Constraint("DistanceY", 2, 2, 2, 1, Q("0.9 in")),
    Sketcher.Constraint("Radius", 1, Q("0.125 in")),
    Sketcher.Constraint("DistanceX", 4, 2, 4, 1, Q("2.85 in")),
    Sketcher.Constraint("DistanceX", -1, 1, 1, 1, Q("4.6 in")),
    Sketcher.Constraint("DistanceY", 3, 1, -1, 1, Q("1.4 in")),
    Sketcher.Constraint("DistanceY", 5, 1, -1, 1, Q("1.2 in")),
])
pocket3 = body.newObject("PartDesign::Pocket", "Pocket002")
pocket3.Profile = sketch4
pocket3.Type = "UpToFirst"
pocket3.Reversed = True

# Sketch on XZ plane
sketch5 = body.newObject("Sketcher::SketchObject", "Sketch004")
sketch5.AttachmentSupport = (doc.getObject("XZ_Plane"), [""])
sketch5.MapMode = "FlatFace"
sketch5.AttachmentOffset = App.Placement(Vector(0, 0, -1 * 25.4), App.Rotation())
sketch5.addGeometry([
    Part.Circle(Vector(3.2, -19.1, 0), Vector(0, 0, 1), 1.8),
    Part.Circle(Vector(123.8, -19.1, 0), Vector(0, 0, 1), 1.8),
], False)
sketch5.addConstraint([
    Sketcher.Constraint("Equal", 0, 1),
    Sketcher.Constraint("Horizontal", 0, 3, 1, 3),
    Sketcher.Constraint("Diameter", 0, Q("0.14 in")),
    Sketcher.Constraint("DistanceY", 0, 3, -1, 1, Q("0.75 in")),
    Sketcher.Constraint("DistanceX", 0, 3, 1, 3, Q("4.75 in")),
    Sketcher.Constraint("DistanceX", -1, 1, 0, 3, Q("0.125 in")),
])
doc.recompute()
hole = body.newObject("PartDesign::Hole", "Hole")
hole.Profile = sketch5
hole.ThreadType = "None"
hole.Diameter = Q("0.14 in")
hole.DepthType = "ThroughAll"
hole.Reversed = True

# Sketch on XY plane
sketch6 = body.newObject("Sketcher::SketchObject", "Sketch005")
sketch6.AttachmentSupport = (doc.getObject("XY_Plane"), [""])
sketch6.MapMode = "FlatFace"
sketch6.addGeometry([
    Part.Circle(Vector(123.8, 12.7, 0), Vector(0, 0, 1), 1.8),
    Part.Circle(Vector(3.2, 12.7, 0), Vector(0, 0, 1), 1.8),
], False)
sketch6.addConstraint([
    Sketcher.Constraint("Equal", 0, 1),
    Sketcher.Constraint("Horizontal", 0, 3, 1, 3),
    Sketcher.Constraint("Diameter", 0, Q("0.14 in")),
    Sketcher.Constraint("DistanceY", -1, 1, 0, 3, Q("0.5 in")),
    Sketcher.Constraint("DistanceX", 1, 3, 0, 3, Q("4.75 in")),
    Sketcher.Constraint("DistanceX", -1, 1, 0, 3, Q("4.875 in")),
])
doc.recompute()
hole2 = body.newObject("PartDesign::Hole", "Hole001")
hole2.Profile = sketch6
hole2.ThreadType = "None"
hole2.Diameter = Q("0.14 in")
hole2.DepthType = "ThroughAll"

# Sketch on XZ plane
sketch7 = body.newObject("Sketcher::SketchObject", "Sketch006")
sketch7.AttachmentSupport = (doc.getObject("XZ_Plane"), [""])
sketch7.MapMode = "FlatFace"
sketch7.addGeometry([
    Part.Circle(Vector(123.8, -19.1, 0), Vector(0, 0, 1), 1.8),
    Part.Circle(Vector(3.2, -19.1, 0), Vector(0, 0, 1), 1.8),
], False)
sketch7.addConstraint([
    Sketcher.Constraint("Equal", 0, 1),
    Sketcher.Constraint("Horizontal", 0, 3, 1, 3),
    Sketcher.Constraint("Diameter", 0, Q("0.14 in")),
    Sketcher.Constraint("DistanceY", 0, 3, -1, 1, Q("0.75 in")),
    Sketcher.Constraint("DistanceX", 1, 3, 0, 3, Q("4.75 in")),
    Sketcher.Constraint("DistanceX", -1, 1, 0, 3, Q("4.875 in")),
])
doc.recompute()
hole3 = body.newObject("PartDesign::Hole", "Hole002")
hole3.Profile = sketch7
hole3.ThreadType = "None"
hole3.Diameter = Q("0.14 in")
hole3.DepthType = "ThroughAll"

# Sketch on XY plane
sketch8 = body.newObject("Sketcher::SketchObject", "Sketch007")
sketch8.AttachmentSupport = (doc.getObject("XY_Plane"), [""])
sketch8.MapMode = "FlatFace"
sketch8.AttachmentOffset = App.Placement(Vector(0, 0, -1.5 * 25.4), App.Rotation())
sketch8.addGeometry([
    Part.Circle(Vector(123.8, 12.7, 0), Vector(0, 0, 1), 1.8),
    Part.Circle(Vector(3.2, 12.7, 0), Vector(0, 0, 1), 1.8),
], False)
sketch8.addConstraint([
    Sketcher.Constraint("Equal", 0, 1),
    Sketcher.Constraint("Horizontal", 0, 3, 1, 3),
    Sketcher.Constraint("Diameter", 0, Q("0.14 in")),
    Sketcher.Constraint("DistanceY", -1, 1, 0, 3, Q("0.5 in")),
    Sketcher.Constraint("DistanceX", 1, 3, 0, 3, Q("4.75 in")),
    Sketcher.Constraint("DistanceX", -1, 1, 0, 3, Q("4.875 in")),
])
doc.recompute()
hole4 = body.newObject("PartDesign::Hole", "Hole003")
hole4.Profile = sketch8
hole4.ThreadType = "None"
hole4.Diameter = Q("0.14 in")
hole4.DepthType = "ThroughAll"
hole4.Reversed = True

# Sketch on XZ plane
sketch9 = body.newObject("Sketcher::SketchObject", "Sketch008")
sketch9.AttachmentSupport = (doc.getObject("XZ_Plane"), [""])
sketch9.MapMode = "FlatFace"
sketch9.addGeometry([
    Part.LineSegment(Vector(48.3, -35.6, 0), Vector(108, -35.6, 0)),  # 0
    Part.ArcOfCircle(Part.Circle(Vector(108, -32.4, 0), Vector(0, 0, 1), 3.2), math.radians(-90), math.radians(90)),  # 1
    Part.LineSegment(Vector(108, -29.2, 0), Vector(108, -24.1, 0)),  # 2
    Part.LineSegment(Vector(108, -24.1, 0), Vector(111.1, -24.1, 0)),  # 3
    Part.ArcOfCircle(Part.Circle(Vector(111.1, -21, 0), Vector(0, 0, 1), 3.2), math.radians(-90), math.radians(90)),  # 4
    Part.LineSegment(Vector(111.1, -17.8, 0), Vector(108, -17.8, 0)),  # 5
    Part.LineSegment(Vector(108, -17.8, 0), Vector(108, -12.7, 0)),  # 6
    Part.ArcOfCircle(Part.Circle(Vector(108, -9.5, 0), Vector(0, 0, 1), 3.2), math.radians(-90), math.radians(90)),  # 7
    Part.LineSegment(Vector(108, -6.3, 0), Vector(48.3, -6.3, 0)),  # 8
    Part.ArcOfCircle(Part.Circle(Vector(48.3, -9.5, 0), Vector(0, 0, 1), 3.2), math.radians(90), math.radians(270)),  # 9
    Part.LineSegment(Vector(48.3, -12.7, 0), Vector(48.3, -17.8, 0)),  # 10
    Part.LineSegment(Vector(48.3, -17.8, 0), Vector(45.1, -17.8, 0)),  # 11
    Part.ArcOfCircle(Part.Circle(Vector(45.1, -21, 0), Vector(0, 0, 1), 3.2), math.radians(90), math.radians(270)),  # 12
    Part.LineSegment(Vector(45.1, -24.1, 0), Vector(48.3, -24.1, 0)),  # 13
    Part.LineSegment(Vector(48.3, -24.1, 0), Vector(48.3, -29.2, 0)),  # 14
    Part.ArcOfCircle(Part.Circle(Vector(48.3, -32.4, 0), Vector(0, 0, 1), 3.2), math.radians(90), math.radians(270)),  # 15
], False)
sketch9.addConstraint([
    Sketcher.Constraint("Tangent", 0, 2, 1, 1),
    Sketcher.Constraint("Coincident", 1, 2, 2, 1),
    Sketcher.Constraint("Coincident", 2, 2, 3, 1),
    Sketcher.Constraint("Tangent", 3, 2, 4, 1),
    Sketcher.Constraint("Tangent", 4, 2, 5, 1),
    Sketcher.Constraint("Coincident", 5, 2, 6, 1),
    Sketcher.Constraint("Coincident", 6, 2, 7, 1),
    Sketcher.Constraint("Tangent", 7, 2, 8, 1),
    Sketcher.Constraint("Tangent", 8, 2, 9, 1),
    Sketcher.Constraint("Coincident", 9, 2, 10, 1),
    Sketcher.Constraint("Coincident", 10, 2, 11, 1),
    Sketcher.Constraint("Tangent", 11, 2, 12, 1),
    Sketcher.Constraint("Tangent", 12, 2, 13, 1),
    Sketcher.Constraint("Coincident", 13, 2, 14, 1),
    Sketcher.Constraint("Coincident", 14, 2, 15, 1),
    Sketcher.Constraint("Tangent", 15, 2, 0, 1),
    Sketcher.Constraint("Horizontal", 0),
    Sketcher.Constraint("Vertical", 2),
    Sketcher.Constraint("Horizontal", 3),
    Sketcher.Constraint("Horizontal", 5),
    Sketcher.Constraint("Vertical", 6),
    Sketcher.Constraint("Horizontal", 8),
    Sketcher.Constraint("Vertical", 10),
    Sketcher.Constraint("Horizontal", 11),
    Sketcher.Constraint("Horizontal", 13),
    Sketcher.Constraint("Vertical", 14),
    Sketcher.Constraint("Equal", 1, 4),
    Sketcher.Constraint("Equal", 4, 7),
    Sketcher.Constraint("Equal", 7, 9),
    Sketcher.Constraint("Equal", 9, 12),
    Sketcher.Constraint("Equal", 12, 15),
    Sketcher.Constraint("Horizontal", 4, 3, 12, 3),
    Sketcher.Constraint("Vertical", 1, 3, 7, 3),
    Sketcher.Constraint("Vertical", 9, 3, 15, 3),
    Sketcher.Constraint("Vertical", 0, 2, 1, 2),
    Sketcher.Constraint("Vertical", 2, 2, 5, 2),
    Sketcher.Constraint("Vertical", 8, 2, 9, 2),
    Sketcher.Constraint("Vertical", 10, 2, 13, 2),
    Sketcher.Constraint("Equal", 5, 11),
    Sketcher.Constraint("Equal", 2, 6),
    Sketcher.Constraint("DistanceY", 2, 1, 2, 2, Q("0.2 in")),
    Sketcher.Constraint("Radius", 1, Q("0.125 in")),
    Sketcher.Constraint("DistanceX", 0, 1, 0, 2, Q("2.35 in")),
    Sketcher.Constraint("DistanceX", -1, 1, 9, 3, Q("1.9 in")),
    Sketcher.Constraint("DistanceY", 0, 2, -1, 1, Q("1.4 in")),
    Sketcher.Constraint("DistanceX", 12, 3, 4, 3, Q("2.6 in")),
])
pocket4 = body.newObject("PartDesign::Pocket", "Pocket003")
pocket4.Profile = sketch9
pocket4.Type = "UpToFirst"

doc.recompute()
